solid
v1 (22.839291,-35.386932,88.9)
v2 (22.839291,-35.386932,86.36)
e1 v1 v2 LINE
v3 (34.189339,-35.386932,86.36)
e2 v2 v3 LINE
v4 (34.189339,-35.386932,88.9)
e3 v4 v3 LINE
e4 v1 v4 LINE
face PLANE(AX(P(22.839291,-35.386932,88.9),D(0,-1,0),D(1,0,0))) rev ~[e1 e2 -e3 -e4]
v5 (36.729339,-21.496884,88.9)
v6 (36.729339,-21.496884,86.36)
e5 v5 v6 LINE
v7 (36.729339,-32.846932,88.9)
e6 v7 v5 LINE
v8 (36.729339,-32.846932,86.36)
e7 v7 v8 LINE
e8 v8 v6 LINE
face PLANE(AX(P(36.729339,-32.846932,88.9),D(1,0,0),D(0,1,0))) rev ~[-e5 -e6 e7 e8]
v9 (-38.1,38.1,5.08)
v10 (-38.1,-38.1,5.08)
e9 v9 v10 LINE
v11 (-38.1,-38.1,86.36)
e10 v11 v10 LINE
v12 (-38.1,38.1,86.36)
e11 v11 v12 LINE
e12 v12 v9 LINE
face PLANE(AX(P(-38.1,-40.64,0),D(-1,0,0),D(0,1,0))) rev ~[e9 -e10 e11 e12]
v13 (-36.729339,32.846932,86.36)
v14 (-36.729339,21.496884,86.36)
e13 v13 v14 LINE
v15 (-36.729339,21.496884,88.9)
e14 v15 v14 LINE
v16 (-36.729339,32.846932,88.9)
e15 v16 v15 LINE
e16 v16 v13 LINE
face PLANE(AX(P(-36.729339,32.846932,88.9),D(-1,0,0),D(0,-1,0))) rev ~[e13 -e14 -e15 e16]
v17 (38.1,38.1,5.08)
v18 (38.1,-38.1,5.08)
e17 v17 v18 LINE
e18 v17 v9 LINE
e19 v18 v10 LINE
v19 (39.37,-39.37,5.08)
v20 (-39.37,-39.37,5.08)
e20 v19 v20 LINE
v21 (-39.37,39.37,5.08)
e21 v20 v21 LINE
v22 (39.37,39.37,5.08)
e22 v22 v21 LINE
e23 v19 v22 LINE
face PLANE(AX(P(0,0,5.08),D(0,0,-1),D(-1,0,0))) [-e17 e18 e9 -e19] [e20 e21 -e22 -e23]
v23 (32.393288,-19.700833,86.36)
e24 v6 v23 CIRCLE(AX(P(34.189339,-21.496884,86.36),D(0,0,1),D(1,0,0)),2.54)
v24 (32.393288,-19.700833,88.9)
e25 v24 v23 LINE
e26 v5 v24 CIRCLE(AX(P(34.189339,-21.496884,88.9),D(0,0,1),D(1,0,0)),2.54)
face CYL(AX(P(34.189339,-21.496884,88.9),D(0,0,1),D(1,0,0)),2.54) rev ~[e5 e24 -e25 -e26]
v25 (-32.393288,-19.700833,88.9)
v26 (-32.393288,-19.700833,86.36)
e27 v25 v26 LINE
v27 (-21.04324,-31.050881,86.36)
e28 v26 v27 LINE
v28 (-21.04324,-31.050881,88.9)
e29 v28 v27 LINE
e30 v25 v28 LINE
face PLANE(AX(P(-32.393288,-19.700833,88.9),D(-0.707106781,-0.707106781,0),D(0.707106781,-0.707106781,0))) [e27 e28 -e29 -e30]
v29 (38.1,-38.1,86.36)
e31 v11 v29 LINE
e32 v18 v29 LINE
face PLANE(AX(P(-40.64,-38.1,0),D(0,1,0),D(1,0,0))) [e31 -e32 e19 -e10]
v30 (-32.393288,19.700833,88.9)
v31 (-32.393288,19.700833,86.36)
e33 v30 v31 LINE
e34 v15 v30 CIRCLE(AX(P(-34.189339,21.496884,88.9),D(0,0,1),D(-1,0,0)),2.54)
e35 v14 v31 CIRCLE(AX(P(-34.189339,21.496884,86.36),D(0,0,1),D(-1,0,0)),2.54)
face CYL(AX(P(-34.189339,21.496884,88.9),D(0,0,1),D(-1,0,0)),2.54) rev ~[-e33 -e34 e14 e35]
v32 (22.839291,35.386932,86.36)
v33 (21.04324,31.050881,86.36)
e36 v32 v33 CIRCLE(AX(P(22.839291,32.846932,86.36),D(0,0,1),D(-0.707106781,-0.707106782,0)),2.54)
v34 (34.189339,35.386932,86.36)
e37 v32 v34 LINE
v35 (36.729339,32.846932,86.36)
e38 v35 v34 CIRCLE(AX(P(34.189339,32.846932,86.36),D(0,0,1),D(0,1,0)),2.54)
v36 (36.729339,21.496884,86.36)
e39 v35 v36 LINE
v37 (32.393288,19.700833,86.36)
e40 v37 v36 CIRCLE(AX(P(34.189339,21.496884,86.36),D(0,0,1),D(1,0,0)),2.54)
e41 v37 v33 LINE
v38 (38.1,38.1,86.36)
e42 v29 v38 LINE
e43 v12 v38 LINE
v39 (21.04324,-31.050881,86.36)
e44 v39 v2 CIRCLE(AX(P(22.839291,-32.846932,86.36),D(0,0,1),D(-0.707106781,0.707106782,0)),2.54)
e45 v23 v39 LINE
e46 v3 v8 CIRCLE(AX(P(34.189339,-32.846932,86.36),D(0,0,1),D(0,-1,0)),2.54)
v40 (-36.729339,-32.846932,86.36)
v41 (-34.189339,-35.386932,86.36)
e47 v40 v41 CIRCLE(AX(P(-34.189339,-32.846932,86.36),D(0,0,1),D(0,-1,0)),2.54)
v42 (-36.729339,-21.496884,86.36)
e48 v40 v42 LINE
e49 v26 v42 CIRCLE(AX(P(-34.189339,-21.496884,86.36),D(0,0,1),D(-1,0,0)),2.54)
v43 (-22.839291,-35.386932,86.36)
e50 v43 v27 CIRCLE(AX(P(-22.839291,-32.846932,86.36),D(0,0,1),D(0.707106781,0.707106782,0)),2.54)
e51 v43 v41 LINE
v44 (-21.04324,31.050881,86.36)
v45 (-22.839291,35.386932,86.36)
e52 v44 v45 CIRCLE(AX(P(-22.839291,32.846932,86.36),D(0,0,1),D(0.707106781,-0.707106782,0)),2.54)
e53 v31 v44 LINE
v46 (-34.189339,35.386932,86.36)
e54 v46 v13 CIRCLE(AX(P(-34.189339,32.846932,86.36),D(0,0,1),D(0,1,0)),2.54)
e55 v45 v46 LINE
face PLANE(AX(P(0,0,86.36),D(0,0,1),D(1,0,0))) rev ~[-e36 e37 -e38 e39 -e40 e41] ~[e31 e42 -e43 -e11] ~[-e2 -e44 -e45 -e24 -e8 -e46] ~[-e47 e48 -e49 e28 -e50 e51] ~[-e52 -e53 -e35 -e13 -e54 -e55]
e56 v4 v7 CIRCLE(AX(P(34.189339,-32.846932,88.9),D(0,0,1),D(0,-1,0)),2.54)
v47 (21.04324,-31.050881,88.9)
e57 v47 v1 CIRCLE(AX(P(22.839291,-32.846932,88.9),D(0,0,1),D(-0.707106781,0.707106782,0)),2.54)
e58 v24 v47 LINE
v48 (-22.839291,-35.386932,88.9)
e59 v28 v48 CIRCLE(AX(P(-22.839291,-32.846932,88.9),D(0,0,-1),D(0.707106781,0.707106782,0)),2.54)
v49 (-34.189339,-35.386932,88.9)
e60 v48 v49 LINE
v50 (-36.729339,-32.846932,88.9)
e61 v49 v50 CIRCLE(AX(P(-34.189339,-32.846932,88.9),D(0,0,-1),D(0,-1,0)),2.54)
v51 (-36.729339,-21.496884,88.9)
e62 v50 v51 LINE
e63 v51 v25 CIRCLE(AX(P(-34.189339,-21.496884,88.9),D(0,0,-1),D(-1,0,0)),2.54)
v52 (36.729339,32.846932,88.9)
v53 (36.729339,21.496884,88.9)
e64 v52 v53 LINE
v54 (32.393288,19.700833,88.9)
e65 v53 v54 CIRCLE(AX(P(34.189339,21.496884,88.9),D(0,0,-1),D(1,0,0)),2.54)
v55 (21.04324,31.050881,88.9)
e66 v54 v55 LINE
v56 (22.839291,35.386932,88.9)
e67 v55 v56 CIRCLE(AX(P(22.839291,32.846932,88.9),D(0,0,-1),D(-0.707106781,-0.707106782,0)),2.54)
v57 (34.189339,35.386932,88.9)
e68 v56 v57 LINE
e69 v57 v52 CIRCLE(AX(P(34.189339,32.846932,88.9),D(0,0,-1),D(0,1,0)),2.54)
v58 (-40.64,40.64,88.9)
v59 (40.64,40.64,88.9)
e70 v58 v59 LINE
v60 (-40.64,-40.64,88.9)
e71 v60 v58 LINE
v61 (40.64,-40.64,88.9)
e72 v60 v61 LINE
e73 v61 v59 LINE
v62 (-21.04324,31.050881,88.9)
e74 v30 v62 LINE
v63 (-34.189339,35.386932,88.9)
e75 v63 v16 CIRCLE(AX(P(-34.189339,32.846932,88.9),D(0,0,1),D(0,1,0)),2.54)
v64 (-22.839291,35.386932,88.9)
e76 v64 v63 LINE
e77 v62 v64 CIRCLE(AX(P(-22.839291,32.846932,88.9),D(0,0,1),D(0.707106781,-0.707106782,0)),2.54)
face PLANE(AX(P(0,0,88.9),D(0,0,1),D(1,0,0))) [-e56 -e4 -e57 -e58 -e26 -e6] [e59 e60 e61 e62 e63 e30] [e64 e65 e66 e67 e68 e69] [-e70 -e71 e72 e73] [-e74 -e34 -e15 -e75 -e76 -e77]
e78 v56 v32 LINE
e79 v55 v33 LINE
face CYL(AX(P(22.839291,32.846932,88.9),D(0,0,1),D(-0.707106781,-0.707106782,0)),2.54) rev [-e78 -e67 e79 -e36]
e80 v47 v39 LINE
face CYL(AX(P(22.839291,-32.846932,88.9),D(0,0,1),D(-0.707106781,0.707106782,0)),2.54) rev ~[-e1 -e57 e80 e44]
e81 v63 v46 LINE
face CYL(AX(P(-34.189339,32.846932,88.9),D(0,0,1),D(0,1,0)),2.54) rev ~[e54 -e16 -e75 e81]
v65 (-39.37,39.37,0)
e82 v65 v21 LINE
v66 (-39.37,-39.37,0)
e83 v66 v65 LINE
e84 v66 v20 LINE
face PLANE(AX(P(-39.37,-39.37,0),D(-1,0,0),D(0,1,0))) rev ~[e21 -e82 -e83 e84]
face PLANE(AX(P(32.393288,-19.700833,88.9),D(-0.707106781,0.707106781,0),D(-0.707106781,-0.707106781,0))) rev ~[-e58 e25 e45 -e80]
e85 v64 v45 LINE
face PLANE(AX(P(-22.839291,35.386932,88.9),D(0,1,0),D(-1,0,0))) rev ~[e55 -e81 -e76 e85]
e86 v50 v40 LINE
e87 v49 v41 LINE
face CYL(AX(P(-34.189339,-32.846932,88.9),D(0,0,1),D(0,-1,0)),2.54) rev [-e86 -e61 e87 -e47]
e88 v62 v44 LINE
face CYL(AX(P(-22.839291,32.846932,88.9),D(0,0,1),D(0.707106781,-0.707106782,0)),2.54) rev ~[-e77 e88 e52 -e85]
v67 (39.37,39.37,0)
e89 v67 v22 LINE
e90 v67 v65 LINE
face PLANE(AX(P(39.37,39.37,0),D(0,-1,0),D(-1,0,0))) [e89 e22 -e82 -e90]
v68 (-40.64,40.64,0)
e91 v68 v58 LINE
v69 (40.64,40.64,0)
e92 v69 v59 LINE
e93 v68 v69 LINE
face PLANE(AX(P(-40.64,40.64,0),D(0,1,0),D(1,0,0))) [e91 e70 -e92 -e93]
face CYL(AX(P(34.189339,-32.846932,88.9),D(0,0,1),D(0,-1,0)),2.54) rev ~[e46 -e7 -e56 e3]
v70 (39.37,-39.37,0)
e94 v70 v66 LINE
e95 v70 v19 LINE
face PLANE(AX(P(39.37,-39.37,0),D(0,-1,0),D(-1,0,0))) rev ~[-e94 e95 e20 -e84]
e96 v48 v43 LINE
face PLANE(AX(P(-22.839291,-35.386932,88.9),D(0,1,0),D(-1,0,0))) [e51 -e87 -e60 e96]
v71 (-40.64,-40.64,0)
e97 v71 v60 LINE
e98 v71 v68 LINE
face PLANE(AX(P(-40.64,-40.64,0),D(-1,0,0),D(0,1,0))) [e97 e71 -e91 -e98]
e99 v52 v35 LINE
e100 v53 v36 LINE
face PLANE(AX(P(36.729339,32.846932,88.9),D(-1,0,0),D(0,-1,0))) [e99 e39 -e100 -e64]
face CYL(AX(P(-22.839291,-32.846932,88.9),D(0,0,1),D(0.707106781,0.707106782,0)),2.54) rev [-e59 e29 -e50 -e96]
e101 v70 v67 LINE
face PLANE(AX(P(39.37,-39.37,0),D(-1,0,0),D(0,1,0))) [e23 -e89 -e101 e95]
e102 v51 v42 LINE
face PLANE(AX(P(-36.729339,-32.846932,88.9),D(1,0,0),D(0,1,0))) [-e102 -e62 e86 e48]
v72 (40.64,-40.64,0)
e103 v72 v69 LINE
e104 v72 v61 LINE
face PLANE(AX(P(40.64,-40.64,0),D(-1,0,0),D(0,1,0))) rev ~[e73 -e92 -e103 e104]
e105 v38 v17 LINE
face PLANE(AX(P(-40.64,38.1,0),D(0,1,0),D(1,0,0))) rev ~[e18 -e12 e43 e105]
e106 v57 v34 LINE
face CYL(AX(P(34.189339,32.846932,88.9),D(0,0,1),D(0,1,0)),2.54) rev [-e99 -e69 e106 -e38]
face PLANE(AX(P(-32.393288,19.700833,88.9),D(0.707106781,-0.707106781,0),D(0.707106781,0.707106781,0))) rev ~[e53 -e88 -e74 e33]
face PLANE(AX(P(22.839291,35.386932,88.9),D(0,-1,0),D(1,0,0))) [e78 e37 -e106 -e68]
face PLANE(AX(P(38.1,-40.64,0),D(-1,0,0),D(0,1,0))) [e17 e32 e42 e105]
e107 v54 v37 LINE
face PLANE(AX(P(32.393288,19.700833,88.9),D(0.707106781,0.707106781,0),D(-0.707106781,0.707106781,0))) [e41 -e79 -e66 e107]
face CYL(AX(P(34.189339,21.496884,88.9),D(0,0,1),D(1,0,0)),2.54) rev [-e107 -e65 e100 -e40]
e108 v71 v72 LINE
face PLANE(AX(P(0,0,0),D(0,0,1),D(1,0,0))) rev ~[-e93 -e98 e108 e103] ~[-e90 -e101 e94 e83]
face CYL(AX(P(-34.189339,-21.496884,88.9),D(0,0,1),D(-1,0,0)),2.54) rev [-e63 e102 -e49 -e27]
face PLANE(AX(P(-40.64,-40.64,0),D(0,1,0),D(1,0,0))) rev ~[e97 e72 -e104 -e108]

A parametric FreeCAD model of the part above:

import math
import FreeCAD as App
import Part
import Sketcher
Q = App.Units.Quantity


def faces_at(feature, points):
    """Names of the faces that lie closest to the given points."""
    faces = feature.Shape.Faces
    near = lambda p: min(range(len(faces)), key=lambda i: faces[i].distToShape(Part.Vertex(*p))[0])
    return sorted({f"Face{near(p) + 1}" for p in points})


def add_polygon(sketch, points):
    """Adds a closed chain of lines whose ends are joined by coincident constraints."""
    first, n = sketch.GeometryCount, len(points)
    for a, b in zip(points, points[1:] + points[:1]):
        sketch.addGeometry(Part.LineSegment(App.Vector(*a, 0), App.Vector(*b, 0)), False)
    for i in range(n):
        sketch.addConstraint(Sketcher.Constraint("Coincident", first + i, 2, first + (i + 1) % n, 1))

doc = App.newDocument("Part")
body = doc.addObject("PartDesign::Body", "Body")

sketch1 = doc.addObject("Sketcher::SketchObject", "Sketch")
body.addObject(sketch1)
sketch1.AttachmentSupport = (doc.XY_Plane, [""])
sketch1.MapMode = "FlatFace"
add_polygon(sketch1, [(-40.64, 40.64), (-40.64, -40.64), (40.64, -40.64), (40.64, 40.64)])
sketch1.addConstraint([
    Sketcher.Constraint("Vertical", 0),
    Sketcher.Constraint("Horizontal", 1),
    Sketcher.Constraint("Vertical", 2),
    Sketcher.Constraint("Horizontal", 3),
    Sketcher.Constraint("Symmetric", 0, 2, 2, 2, -1, 1),
    Sketcher.Constraint("Equal", 3, 0),
    Sketcher.Constraint("DistanceX", 1, 1, 1, 2, Q("3.2 in")),
])
pad1 = doc.addObject("PartDesign::Pad", "Pad")
body.addObject(pad1)
pad1.Profile = sketch1
pad1.Length = Q("3.5 in")
doc.recompute()

thickness = doc.addObject("PartDesign::Thickness", "Thickness")
body.addObject(thickness)
thickness.Base = (pad1, faces_at(pad1, [(0, 0, 0)]))
thickness.Value = Q("0.1 in")
thickness.Reversed = True
thickness.Join = "Intersection"

sketch2 = doc.addObject("Sketcher::SketchObject", "Sketch001")
body.addObject(sketch2)
sketch2.AttachmentSupport = (doc.XY_Plane, [""])
sketch2.MapMode = "FlatFace"
add_polygon(sketch2, [(39.37, 39.37), (39.37, -39.37), (-39.37, -39.37), (-39.37, 39.37)])
sketch2.addConstraint([
    Sketcher.Constraint("Vertical", 0),
    Sketcher.Constraint("Horizontal", 1),
    Sketcher.Constraint("Vertical", 2),
    Sketcher.Constraint("Horizontal", 3),
    Sketcher.Constraint("Symmetric", 0, 2, 2, 2, -1, 1),
    Sketcher.Constraint("Equal", 3, 0),
    Sketcher.Constraint("DistanceX", 1, 2, 1, 1, Q("3.1 in")),
])
pocket1 = doc.addObject("PartDesign::Pocket", "Pocket")
body.addObject(pocket1)
pocket1.Profile = sketch2
pocket1.Length = Q("0.2 in")
pocket1.Reversed = True

sketch3 = doc.addObject("Sketcher::SketchObject", "Sketch002")
body.addObject(sketch3)
sketch3.AttachmentSupport = (doc.XY_Plane, [""])
sketch3.MapMode = "FlatFace"
sketch3.AttachmentOffset = App.Placement(App.Vector(0, 0, 3.5 * 25.4), App.Rotation())
sketch3.addGeometry([
    Part.LineSegment(App.Vector(-36.729339, 32.846932, 0), App.Vector(-36.729339, 21.496884, 0)),
    Part.ArcOfCircle(Part.Circle(App.Vector(-34.189339, 21.496884, 0), App.Vector(0, 0, 1), 2.54), math.radians(180), math.radians(315)),
    Part.LineSegment(App.Vector(-32.393288, 19.700833, 0), App.Vector(-21.04324, 31.050881, 0)),
    Part.ArcOfCircle(Part.Circle(App.Vector(-22.839291, 32.846932, 0), App.Vector(0, 0, 1), 2.54), math.radians(-45), math.radians(90)),
    Part.LineSegment(App.Vector(-22.839291, 35.386932, 0), App.Vector(-34.189339, 35.386932, 0)),
    Part.ArcOfCircle(Part.Circle(App.Vector(-34.189339, 32.846932, 0), App.Vector(0, 0, 1), 2.54), math.radians(90), math.radians(180)),
    Part.LineSegment(App.Vector(21.04324, 31.050881, 0), App.Vector(32.393288, 19.700833, 0)),
    Part.ArcOfCircle(Part.Circle(App.Vector(34.189339, 21.496884, 0), App.Vector(0, 0, 1), 2.54), math.radians(-135), math.radians(0)),
    Part.LineSegment(App.Vector(36.729339, 21.496884, 0), App.Vector(36.729339, 32.846932, 0)),
    Part.ArcOfCircle(Part.Circle(App.Vector(34.189339, 32.846932, 0), App.Vector(0, 0, 1), 2.54), math.radians(0), math.radians(90)),
    Part.LineSegment(App.Vector(34.189339, 35.386932, 0), App.Vector(22.839291, 35.386932, 0)),
    Part.ArcOfCircle(Part.Circle(App.Vector(22.839291, 32.846932, 0), App.Vector(0, 0, 1), 2.54), math.radians(90), math.radians(225)),
    Part.LineSegment(App.Vector(32.393288, -19.700833, 0), App.Vector(21.04324, -31.050881, 0)),
    Part.ArcOfCircle(Part.Circle(App.Vector(22.839291, -32.846932, 0), App.Vector(0, 0, 1), 2.54), math.radians(135), math.radians(270)),
    Part.LineSegment(App.Vector(22.839291, -35.386932, 0), App.Vector(34.189339, -35.386932, 0)),
    Part.ArcOfCircle(Part.Circle(App.Vector(34.189339, -32.846932, 0), App.Vector(0, 0, 1), 2.54), math.radians(-90), math.radians(0)),
    Part.LineSegment(App.Vector(36.729339, -32.846932, 0), App.Vector(36.729339, -21.496884, 0)),
    Part.ArcOfCircle(Part.Circle(App.Vector(34.189339, -21.496884, 0), App.Vector(0, 0, 1), 2.54), math.radians(0), math.radians(135)),
    Part.LineSegment(App.Vector(-21.04324, -31.050881, 0), App.Vector(-32.393288, -19.700833, 0)),
    Part.ArcOfCircle(Part.Circle(App.Vector(-34.189339, -21.496884, 0), App.Vector(0, 0, 1), 2.54), math.radians(45), math.radians(180)),
    Part.LineSegment(App.Vector(-36.729339, -21.496884, 0), App.Vector(-36.729339, -32.846932, 0)),
    Part.ArcOfCircle(Part.Circle(App.Vector(-34.189339, -32.846932, 0), App.Vector(0, 0, 1), 2.54), math.radians(180), math.radians(270)),
    Part.LineSegment(App.Vector(-34.189339, -35.386932, 0), App.Vector(-22.839291, -35.386932, 0)),
    Part.ArcOfCircle(Part.Circle(App.Vector(-22.839291, -32.846932, 0), App.Vector(0, 0, 1), 2.54), math.radians(-90), math.radians(45)),
], False)
sketch3.addConstraint([
    Sketcher.Constraint("Tangent", 0, 2, 1, 1),
    Sketcher.Constraint("Tangent", 1, 2, 2, 1),
    Sketcher.Constraint("Tangent", 2, 2, 3, 1),
    Sketcher.Constraint("Tangent", 3, 2, 4, 1),
    Sketcher.Constraint("Tangent", 4, 2, 5, 1),
    Sketcher.Constraint("Tangent", 5, 2, 0, 1),
    Sketcher.Constraint("Tangent", 6, 2, 7, 1),
    Sketcher.Constraint("Tangent", 7, 2, 8, 1),
    Sketcher.Constraint("Tangent", 8, 2, 9, 1),
    Sketcher.Constraint("Tangent", 9, 2, 10, 1),
    Sketcher.Constraint("Tangent", 10, 2, 11, 1),
    Sketcher.Constraint("Tangent", 11, 2, 6, 1),
    Sketcher.Constraint("Tangent", 12, 2, 13, 1),
    Sketcher.Constraint("Tangent", 13, 2, 14, 1),
    Sketcher.Constraint("Tangent", 14, 2, 15, 1),
    Sketcher.Constraint("Tangent", 15, 2, 16, 1),
    Sketcher.Constraint("Tangent", 16, 2, 17, 1),
    Sketcher.Constraint("Tangent", 17, 2, 12, 1),
    Sketcher.Constraint("Tangent", 18, 2, 19, 1),
    Sketcher.Constraint("Tangent", 19, 2, 20, 1),
    Sketcher.Constraint("Tangent", 20, 2, 21, 1),
    Sketcher.Constraint("Tangent", 21, 2, 22, 1),
    Sketcher.Constraint("Tangent", 22, 2, 23, 1),
    Sketcher.Constraint("Tangent", 23, 2, 18, 1),
    Sketcher.Constraint("Vertical", 0),
    Sketcher.Constraint("Horizontal", 4),
    Sketcher.Constraint("Vertical", 8),
    Sketcher.Constraint("Horizontal", 10),
    Sketcher.Constraint("Horizontal", 14),
    Sketcher.Constraint("Vertical", 16),
    Sketcher.Constraint("Vertical", 20),
    Sketcher.Constraint("Horizontal", 22),
    Sketcher.Constraint("Equal", 1, 3),
    Sketcher.Constraint("Equal", 3, 5),
    Sketcher.Constraint("Equal", 5, 7),
    Sketcher.Constraint("Equal", 7, 9),
    Sketcher.Constraint("Equal", 9, 11),
    Sketcher.Constraint("Equal", 11, 13),
    Sketcher.Constraint("Equal", 13, 15),
    Sketcher.Constraint("Equal", 15, 17),
    Sketcher.Constraint("Equal", 17, 19),
    Sketcher.Constraint("Equal", 19, 21),
    Sketcher.Constraint("Equal", 21, 23),
    Sketcher.Constraint("Symmetric", 3, 3, 13, 3, -1, 1),
    Sketcher.Constraint("Symmetric", 1, 3, 17, 3, -1, 1),
    Sketcher.Constraint("Symmetric", 7, 3, 19, 3, -1, 1),
    Sketcher.Constraint("Symmetric", 11, 3, 23, 3, -1, 1),
    Sketcher.Constraint("Symmetric", 1, 3, 7, 3, -2),
    Sketcher.Constraint("Symmetric", 3, 3, 11, 3, -2),
    Sketcher.Constraint("Perpendicular", 2, 6),
    Sketcher.Constraint("Radius", 1, Q("0.1 in")),
    Sketcher.Constraint("DistanceY", 1, 2, 5, 3, Q("13.146099 mm")),
    Sketcher.Constraint("DistanceX", 1, 3, -1, 1, Q("34.189339 mm")),
    Sketcher.Constraint("DistanceY", -1, 1, 3, 3, Q("32.846932 mm")),
])
pocket2 = doc.addObject("PartDesign::Pocket", "Pocket001")
body.addObject(pocket2)
pocket2.Profile = sketch3
pocket2.Length = Q("0.7 in")

doc.recompute()
